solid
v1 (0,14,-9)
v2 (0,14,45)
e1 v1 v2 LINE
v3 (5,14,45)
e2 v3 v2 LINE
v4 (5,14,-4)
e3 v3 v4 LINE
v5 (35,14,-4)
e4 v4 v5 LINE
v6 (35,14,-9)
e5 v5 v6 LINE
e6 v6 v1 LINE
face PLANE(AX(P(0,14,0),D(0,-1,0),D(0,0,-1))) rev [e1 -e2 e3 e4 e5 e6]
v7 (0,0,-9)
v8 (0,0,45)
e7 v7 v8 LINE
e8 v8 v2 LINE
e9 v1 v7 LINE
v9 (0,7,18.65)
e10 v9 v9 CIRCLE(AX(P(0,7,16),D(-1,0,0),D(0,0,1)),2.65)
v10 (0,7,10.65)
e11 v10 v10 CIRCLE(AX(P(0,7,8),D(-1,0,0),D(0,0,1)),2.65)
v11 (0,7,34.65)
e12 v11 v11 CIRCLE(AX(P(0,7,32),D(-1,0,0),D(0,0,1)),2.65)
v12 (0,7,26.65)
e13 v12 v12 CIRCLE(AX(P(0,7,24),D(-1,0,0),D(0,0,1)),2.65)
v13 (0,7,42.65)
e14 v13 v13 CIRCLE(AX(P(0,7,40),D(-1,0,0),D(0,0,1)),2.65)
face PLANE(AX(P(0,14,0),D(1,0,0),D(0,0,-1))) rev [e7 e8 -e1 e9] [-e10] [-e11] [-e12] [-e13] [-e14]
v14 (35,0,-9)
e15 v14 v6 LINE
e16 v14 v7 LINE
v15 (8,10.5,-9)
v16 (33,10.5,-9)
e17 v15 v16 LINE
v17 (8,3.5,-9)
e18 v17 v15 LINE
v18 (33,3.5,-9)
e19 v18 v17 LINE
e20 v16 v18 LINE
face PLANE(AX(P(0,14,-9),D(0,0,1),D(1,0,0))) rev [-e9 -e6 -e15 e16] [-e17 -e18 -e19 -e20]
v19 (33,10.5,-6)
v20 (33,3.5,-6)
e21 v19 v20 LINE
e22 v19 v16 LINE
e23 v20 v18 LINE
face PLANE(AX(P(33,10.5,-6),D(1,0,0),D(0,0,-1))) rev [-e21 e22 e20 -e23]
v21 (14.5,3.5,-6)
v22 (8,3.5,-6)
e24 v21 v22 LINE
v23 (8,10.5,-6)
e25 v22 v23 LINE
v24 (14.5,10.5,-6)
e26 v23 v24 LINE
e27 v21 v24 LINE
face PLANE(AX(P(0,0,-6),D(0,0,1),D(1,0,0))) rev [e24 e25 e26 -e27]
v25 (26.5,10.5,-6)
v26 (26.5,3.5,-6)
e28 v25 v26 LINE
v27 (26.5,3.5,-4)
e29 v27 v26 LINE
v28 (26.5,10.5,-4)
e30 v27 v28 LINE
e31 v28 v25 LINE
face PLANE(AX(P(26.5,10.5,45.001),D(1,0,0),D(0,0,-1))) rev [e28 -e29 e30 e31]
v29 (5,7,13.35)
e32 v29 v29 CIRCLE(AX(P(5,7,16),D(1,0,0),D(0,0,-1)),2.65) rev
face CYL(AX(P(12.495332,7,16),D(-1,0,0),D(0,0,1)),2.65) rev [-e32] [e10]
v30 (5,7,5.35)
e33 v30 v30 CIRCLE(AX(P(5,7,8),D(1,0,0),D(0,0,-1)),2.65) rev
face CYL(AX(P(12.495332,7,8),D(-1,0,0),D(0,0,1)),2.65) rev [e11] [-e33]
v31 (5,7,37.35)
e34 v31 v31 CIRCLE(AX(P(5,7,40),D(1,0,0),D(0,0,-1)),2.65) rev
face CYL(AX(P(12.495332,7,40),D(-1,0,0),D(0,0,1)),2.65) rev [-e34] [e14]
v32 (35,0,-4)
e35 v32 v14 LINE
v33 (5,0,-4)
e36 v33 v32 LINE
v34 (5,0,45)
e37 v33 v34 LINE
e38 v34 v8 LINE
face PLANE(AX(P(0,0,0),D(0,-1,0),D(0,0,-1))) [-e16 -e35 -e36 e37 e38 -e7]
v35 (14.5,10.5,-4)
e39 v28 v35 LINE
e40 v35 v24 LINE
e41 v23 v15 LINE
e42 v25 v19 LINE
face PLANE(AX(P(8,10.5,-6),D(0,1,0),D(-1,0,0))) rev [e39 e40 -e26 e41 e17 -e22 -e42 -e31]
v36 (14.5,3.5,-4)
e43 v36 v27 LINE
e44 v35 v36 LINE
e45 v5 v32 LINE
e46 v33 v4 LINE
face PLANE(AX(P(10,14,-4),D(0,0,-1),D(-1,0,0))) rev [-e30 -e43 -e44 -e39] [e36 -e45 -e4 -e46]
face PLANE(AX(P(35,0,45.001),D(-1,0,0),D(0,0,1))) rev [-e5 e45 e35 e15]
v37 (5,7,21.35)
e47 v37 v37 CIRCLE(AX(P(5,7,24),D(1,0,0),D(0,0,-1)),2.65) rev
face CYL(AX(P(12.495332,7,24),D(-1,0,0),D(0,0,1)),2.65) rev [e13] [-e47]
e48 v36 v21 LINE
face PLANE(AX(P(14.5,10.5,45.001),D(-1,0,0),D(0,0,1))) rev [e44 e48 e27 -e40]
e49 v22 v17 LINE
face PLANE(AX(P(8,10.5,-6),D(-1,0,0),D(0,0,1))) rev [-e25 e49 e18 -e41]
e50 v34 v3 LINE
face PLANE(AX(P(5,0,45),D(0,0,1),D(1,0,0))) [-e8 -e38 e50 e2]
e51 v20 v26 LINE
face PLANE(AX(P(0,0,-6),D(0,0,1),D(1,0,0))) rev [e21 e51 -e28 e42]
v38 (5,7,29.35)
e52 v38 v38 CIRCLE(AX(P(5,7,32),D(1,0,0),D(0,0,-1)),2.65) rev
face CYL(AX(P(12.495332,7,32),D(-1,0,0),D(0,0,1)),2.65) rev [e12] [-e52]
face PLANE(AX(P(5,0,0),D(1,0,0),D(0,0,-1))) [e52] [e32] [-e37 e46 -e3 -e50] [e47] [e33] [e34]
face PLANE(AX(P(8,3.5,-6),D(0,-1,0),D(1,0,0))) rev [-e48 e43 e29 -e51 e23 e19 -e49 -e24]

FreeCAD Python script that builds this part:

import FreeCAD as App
import Part
import Sketcher
Q = App.Units.Quantity

doc = App.newDocument("Part")
body = doc.addObject("PartDesign::Body", "Body")

sketch1 = body.newObject("Sketcher::SketchObject", "Sketch")
sketch1.AttachmentSupport = (doc.getObject("XZ_Plane"), [""])
sketch1.MapMode = "FlatFace"
sketch1.addGeometry(Part.LineSegment(App.Vector(10, 0, 0), App.Vector(10, -4, 0)), False)
sketch1.addGeometry(Part.LineSegment(App.Vector(10, -4, 0), App.Vector(40, -4, 0)), False)
sketch1.addGeometry(Part.LineSegment(App.Vector(40, -4, 0), App.Vector(40, -9, 0)), False)
sketch1.addGeometry(Part.LineSegment(App.Vector(40, -9, 0), App.Vector(0, -9, 0)), False)
sketch1.addGeometry(Part.LineSegment(App.Vector(0, -9, 0), App.Vector(0, 0, 0)), False)
sketch1.addGeometry(Part.LineSegment(App.Vector(0, 0, 0), App.Vector(10, 0, 0)), False)
sketch1.addConstraint(Sketcher.Constraint("Coincident", 0, 2, 1, 1))
sketch1.addConstraint(Sketcher.Constraint("Coincident", 1, 2, 2, 1))
sketch1.addConstraint(Sketcher.Constraint("Coincident", 2, 2, 3, 1))
sketch1.addConstraint(Sketcher.Constraint("Coincident", 3, 2, 4, 1))
sketch1.addConstraint(Sketcher.Constraint("Coincident", 4, 2, 5, 1))
sketch1.addConstraint(Sketcher.Constraint("Coincident", 5, 2, 0, 1))
sketch1.addConstraint(Sketcher.Constraint("Vertical", 0))
sketch1.addConstraint(Sketcher.Constraint("Horizontal", 1))
sketch1.addConstraint(Sketcher.Constraint("Vertical", 2))
sketch1.addConstraint(Sketcher.Constraint("Horizontal", 3))
sketch1.addConstraint(Sketcher.Constraint("Vertical", 4))
sketch1.addConstraint(Sketcher.Constraint("Horizontal", 5))
sketch1.addConstraint(Sketcher.Constraint("Coincident", 4, 2, -1, 1))
sketch1.addConstraint(Sketcher.Constraint("DistanceX", 1, 1, 1, 2, Q("30 mm")))
sketch1.addConstraint(Sketcher.Constraint("DistanceX", 3, 2, 3, 1, Q("40 mm")))
sketch1.addConstraint(Sketcher.Constraint("DistanceY", 0, 2, 0, 1, Q("4 mm")))
sketch1.addConstraint(Sketcher.Constraint("DistanceY", 2, 2, 2, 1, Q("5 mm")))
pad1 = body.newObject("PartDesign::Pad", "Pad")
pad1.Profile = sketch1
pad1.Length = 14
pad1.Reversed = True

sketch2 = body.newObject("Sketcher::SketchObject", "Sketch001")
sketch2.AttachmentSupport = (doc.getObject("YZ_Plane"), [""])
sketch2.MapMode = "FlatFace"
sketch2.addGeometry(Part.LineSegment(App.Vector(14, 0, 0), App.Vector(0, 0, 0)), False)
sketch2.addGeometry(Part.LineSegment(App.Vector(0, 0, 0), App.Vector(0, 45, 0)), False)
sketch2.addGeometry(Part.LineSegment(App.Vector(0, 45, 0), App.Vector(14, 45, 0)), False)
sketch2.addGeometry(Part.LineSegment(App.Vector(14, 45, 0), App.Vector(14, 0, 0)), False)
sketch2.addConstraint(Sketcher.Constraint("Coincident", 0, 2, 1, 1))
sketch2.addConstraint(Sketcher.Constraint("Coincident", 1, 2, 2, 1))
sketch2.addConstraint(Sketcher.Constraint("Coincident", 2, 2, 3, 1))
sketch2.addConstraint(Sketcher.Constraint("Coincident", 3, 2, 0, 1))
sketch2.addConstraint(Sketcher.Constraint("Horizontal", 0))
sketch2.addConstraint(Sketcher.Constraint("Vertical", 1))
sketch2.addConstraint(Sketcher.Constraint("Horizontal", 2))
sketch2.addConstraint(Sketcher.Constraint("Vertical", 3))
sketch2.addConstraint(Sketcher.Constraint("Coincident", 0, 2, -1, 1))
sketch2.addConstraint(Sketcher.Constraint("DistanceX", 0, 2, 0, 1, Q("14 mm")))
sketch2.addConstraint(Sketcher.Constraint("DistanceY", 1, 1, 1, 2, Q("45 mm")))
pad2 = body.newObject("PartDesign::Pad", "Pad001")
pad2.Profile = sketch2
pad2.Length = 5

sketch3 = body.newObject("Sketcher::SketchObject", "Sketch002")
sketch3.AttachmentSupport = (doc.getObject("YZ_Plane"), [""])
sketch3.MapMode = "FlatFace"
sketch3.addGeometry(Part.Circle(App.Vector(7, 0, 0), App.Vector(0, 0, 1), 2.6), False)
sketch3.addGeometry(Part.Circle(App.Vector(7, 8, 0), App.Vector(0, 0, 1), 2.6), False)
sketch3.addGeometry(Part.Circle(App.Vector(7, 16, 0), App.Vector(0, 0, 1), 2.6), False)
sketch3.addGeometry(Part.Circle(App.Vector(7, 24, 0), App.Vector(0, 0, 1), 2.6), False)
sketch3.addGeometry(Part.Circle(App.Vector(7, 32, 0), App.Vector(0, 0, 1), 2.6), False)
sketch3.addGeometry(Part.Circle(App.Vector(7, 40, 0), App.Vector(0, 0, 1), 2.6), False)
sketch3.addConstraint(Sketcher.Constraint("Equal", 0, 1))
sketch3.addConstraint(Sketcher.Constraint("Equal", 1, 2))
sketch3.addConstraint(Sketcher.Constraint("Equal", 2, 3))
sketch3.addConstraint(Sketcher.Constraint("Equal", 3, 4))
sketch3.addConstraint(Sketcher.Constraint("Equal", 4, 5))
sketch3.addConstraint(Sketcher.Constraint("PointOnObject", 0, 3, -1))
sketch3.addConstraint(Sketcher.Constraint("Vertical", 0, 3, 1, 3))
sketch3.addConstraint(Sketcher.Constraint("Vertical", 1, 3, 2, 3))
sketch3.addConstraint(Sketcher.Constraint("Vertical", 2, 3, 3, 3))
sketch3.addConstraint(Sketcher.Constraint("Vertical", 3, 3, 4, 3))
sketch3.addConstraint(Sketcher.Constraint("Vertical", 4, 3, 5, 3))
sketch3.addConstraint(Sketcher.Constraint("Diameter", 0, Q("5.3 mm")))
sketch3.addConstraint(Sketcher.Constraint("DistanceX", -1, 1, 0, 3, Q("7 mm")))
sketch3.addConstraint(Sketcher.Constraint("DistanceY", -1, 1, 1, 3, Q("8 mm")))
sketch3.addConstraint(Sketcher.Constraint("DistanceY", -1, 1, 2, 3, Q("16 mm")))
sketch3.addConstraint(Sketcher.Constraint("DistanceY", -1, 1, 3, 3, Q("24 mm")))
sketch3.addConstraint(Sketcher.Constraint("DistanceY", -1, 1, 4, 3, Q("32 mm")))
sketch3.addConstraint(Sketcher.Constraint("DistanceY", -1, 1, 5, 3, Q("40 mm")))
pocket1 = body.newObject("PartDesign::Pocket", "Pocket")
pocket1.Profile = sketch3
pocket1.Length = 5
pocket1.Reversed = True

sketch4 = body.newObject("Sketcher::SketchObject", "Sketch003")
sketch4.AttachmentSupport = (doc.getObject("XZ_Plane"), [""])
sketch4.MapMode = "FlatFace"
sketch4.AttachmentOffset = App.Placement(App.Vector(0, 0, -14), App.Rotation())
sketch4.addGeometry(Part.LineSegment(App.Vector(5, -4, 0), App.Vector(5, 0, 0)), False)
sketch4.addGeometry(Part.LineSegment(App.Vector(5, 0, 0), App.Vector(10, 0, 0)), False)
sketch4.addGeometry(Part.LineSegment(App.Vector(10, 0, 0), App.Vector(10, -4, 0)), False)
sketch4.addGeometry(Part.LineSegment(App.Vector(10, -4, 0), App.Vector(5, -4, 0)), False)
sketch4.addConstraint(Sketcher.Constraint("Coincident", 0, 2, 1, 1))
sketch4.addConstraint(Sketcher.Constraint("Coincident", 1, 2, 2, 1))
sketch4.addConstraint(Sketcher.Constraint("Coincident", 2, 2, 3, 1))
sketch4.addConstraint(Sketcher.Constraint("Coincident", 3, 2, 0, 1))
sketch4.addConstraint(Sketcher.Constraint("Vertical", 0))
sketch4.addConstraint(Sketcher.Constraint("Horizontal", 1))
sketch4.addConstraint(Sketcher.Constraint("Vertical", 2))
sketch4.addConstraint(Sketcher.Constraint("Horizontal", 3))
sketch4.addConstraint(Sketcher.Constraint("PointOnObject", 0, 2, -1))
sketch4.addConstraint(Sketcher.Constraint("DistanceX", 1, 1, 1, 2, Q("5 mm")))
sketch4.addConstraint(Sketcher.Constraint("DistanceY", 0, 1, 0, 2, Q("4 mm")))
sketch4.addConstraint(Sketcher.Constraint("DistanceX", -1, 1, 0, 2, Q("5 mm")))
pocket2 = body.newObject("PartDesign::Pocket", "Pocket001")
pocket2.Profile = sketch4
pocket2.Type = "ThroughAll"
pocket2.Reversed = True

sketch5 = body.newObject("Sketcher::SketchObject", "Sketch004")
sketch5.AttachmentSupport = (doc.getObject("YZ_Plane"), [""])
sketch5.MapMode = "FlatFace"
sketch5.addGeometry(Part.Circle(App.Vector(7, 0, 0), App.Vector(0, 0, 1), 2.6), False)
sketch5.addConstraint(Sketcher.Constraint("PointOnObject", 0, 3, -1))
sketch5.addConstraint(Sketcher.Constraint("Diameter", 0, Q("5.3 mm")))
sketch5.addConstraint(Sketcher.Constraint("DistanceX", -1, 1, 0, 3, Q("7 mm")))
pad3 = body.newObject("PartDesign::Pad", "Pad002")
pad3.Profile = sketch5
pad3.Length = 5

sketch6 = body.newObject("Sketcher::SketchObject", "Sketch005")
sketch6.AttachmentSupport = (doc.getObject("XY_Plane"), [""])
sketch6.MapMode = "FlatFace"
sketch6.AttachmentOffset = App.Placement(App.Vector(0, 0, -9), App.Rotation())
sketch6.addGeometry(Part.LineSegment(App.Vector(33, 10, 0), App.Vector(33, 4, 0)), False)
sketch6.addGeometry(Part.LineSegment(App.Vector(33, 4, 0), App.Vector(8, 4, 0)), False)
sketch6.addGeometry(Part.LineSegment(App.Vector(8, 4, 0), App.Vector(8, 10, 0)), False)
sketch6.addGeometry(Part.LineSegment(App.Vector(8, 10, 0), App.Vector(33, 10, 0)), False)
sketch6.addConstraint(Sketcher.Constraint("Coincident", 0, 2, 1, 1))
sketch6.addConstraint(Sketcher.Constraint("Coincident", 1, 2, 2, 1))
sketch6.addConstraint(Sketcher.Constraint("Coincident", 2, 2, 3, 1))
sketch6.addConstraint(Sketcher.Constraint("Coincident", 3, 2, 0, 1))
sketch6.addConstraint(Sketcher.Constraint("Vertical", 0))
sketch6.addConstraint(Sketcher.Constraint("Horizontal", 1))
sketch6.addConstraint(Sketcher.Constraint("Vertical", 2))
sketch6.addConstraint(Sketcher.Constraint("Horizontal", 3))
sketch6.addConstraint(Sketcher.Constraint("DistanceX", 1, 2, 1, 1, Q("25 mm")))
sketch6.addConstraint(Sketcher.Constraint("DistanceY", 0, 2, 0, 1, Q("7 mm")))
sketch6.addConstraint(Sketcher.Constraint("DistanceX", -1, 1, 0, 2, Q("33 mm")))
sketch6.addConstraint(Sketcher.Constraint("DistanceY", -1, 1, 0, 2, Q("3.5 mm")))
pocket3 = body.newObject("PartDesign::Pocket", "Pocket002")
pocket3.Profile = sketch6
pocket3.Length = 3
pocket3.Reversed = True

sketch7 = body.newObject("Sketcher::SketchObject", "Sketch006")
sketch7.AttachmentSupport = (doc.getObject("XY_Plane"), [""])
sketch7.MapMode = "FlatFace"
sketch7.AttachmentOffset = App.Placement(App.Vector(0, 0, -6), App.Rotation())
sketch7.addGeometry(Part.LineSegment(App.Vector(26, 10, 0), App.Vector(26, 4, 0)), False)
sketch7.addGeometry(Part.LineSegment(App.Vector(26, 4, 0), App.Vector(14, 4, 0)), False)
sketch7.addGeometry(Part.LineSegment(App.Vector(14, 4, 0), App.Vector(14, 10, 0)), False)
sketch7.addGeometry(Part.LineSegment(App.Vector(14, 10, 0), App.Vector(26, 10, 0)), False)
sketch7.addConstraint(Sketcher.Constraint("Coincident", 0, 2, 1, 1))
sketch7.addConstraint(Sketcher.Constraint("Coincident", 1, 2, 2, 1))
sketch7.addConstraint(Sketcher.Constraint("Coincident", 2, 2, 3, 1))
sketch7.addConstraint(Sketcher.Constraint("Coincident", 3, 2, 0, 1))
sketch7.addConstraint(Sketcher.Constraint("Vertical", 0))
sketch7.addConstraint(Sketcher.Constraint("Horizontal", 1))
sketch7.addConstraint(Sketcher.Constraint("Vertical", 2))
sketch7.addConstraint(Sketcher.Constraint("Horizontal", 3))
sketch7.addConstraint(Sketcher.Constraint("DistanceX", 1, 2, 1, 1, Q("12 mm")))
sketch7.addConstraint(Sketcher.Constraint("DistanceY", 0, 2, 0, 1, Q("7 mm")))
sketch7.addConstraint(Sketcher.Constraint("DistanceX", -1, 1, 0, 2, Q("26.5 mm")))
sketch7.addConstraint(Sketcher.Constraint("DistanceY", -1, 1, 0, 2, Q("3.5 mm")))
pocket4 = body.newObject("PartDesign::Pocket", "Pocket003")
pocket4.Profile = sketch7
pocket4.Type = "UpToFirst"
pocket4.Reversed = True

sketch8 = body.newObject("Sketcher::SketchObject", "Sketch007")
sketch8.AttachmentSupport = (doc.getObject("XY_Plane"), [""])
sketch8.MapMode = "FlatFace"
sketch8.AttachmentOffset = App.Placement(App.Vector(0, 0, -9), App.Rotation())
sketch8.addGeometry(Part.LineSegment(App.Vector(40, 14, 0), App.Vector(40, 0, 0)), False)
sketch8.addGeometry(Part.LineSegment(App.Vector(40, 0, 0), App.Vector(35, 0, 0)), False)
sketch8.addGeometry(Part.LineSegment(App.Vector(35, 0, 0), App.Vector(35, 14, 0)), False)
sketch8.addGeometry(Part.LineSegment(App.Vector(35, 14, 0), App.Vector(40, 14, 0)), False)
sketch8.addConstraint(Sketcher.Constraint("Coincident", 0, 2, 1, 1))
sketch8.addConstraint(Sketcher.Constraint("Coincident", 1, 2, 2, 1))
sketch8.addConstraint(Sketcher.Constraint("Coincident", 2, 2, 3, 1))
sketch8.addConstraint(Sketcher.Constraint("Coincident", 3, 2, 0, 1))
sketch8.addConstraint(Sketcher.Constraint("Vertical", 0))
sketch8.addConstraint(Sketcher.Constraint("Horizontal", 1))
sketch8.addConstraint(Sketcher.Constraint("Vertical", 2))
sketch8.addConstraint(Sketcher.Constraint("Horizontal", 3))
sketch8.addConstraint(Sketcher.Constraint("PointOnObject", 0, 2, -1))
sketch8.addConstraint(Sketcher.Constraint("DistanceX", 1, 2, 1, 1, Q("5 mm")))
sketch8.addConstraint(Sketcher.Constraint("DistanceY", 0, 2, 0, 1, Q("14 mm")))
sketch8.addConstraint(Sketcher.Constraint("DistanceX", -1, 1, 0, 2, Q("40 mm")))
pocket5 = body.newObject("PartDesign::Pocket", "Pocket004")
pocket5.Profile = sketch8
pocket5.Type = "UpToFirst"
pocket5.Reversed = True

doc.recompute()
